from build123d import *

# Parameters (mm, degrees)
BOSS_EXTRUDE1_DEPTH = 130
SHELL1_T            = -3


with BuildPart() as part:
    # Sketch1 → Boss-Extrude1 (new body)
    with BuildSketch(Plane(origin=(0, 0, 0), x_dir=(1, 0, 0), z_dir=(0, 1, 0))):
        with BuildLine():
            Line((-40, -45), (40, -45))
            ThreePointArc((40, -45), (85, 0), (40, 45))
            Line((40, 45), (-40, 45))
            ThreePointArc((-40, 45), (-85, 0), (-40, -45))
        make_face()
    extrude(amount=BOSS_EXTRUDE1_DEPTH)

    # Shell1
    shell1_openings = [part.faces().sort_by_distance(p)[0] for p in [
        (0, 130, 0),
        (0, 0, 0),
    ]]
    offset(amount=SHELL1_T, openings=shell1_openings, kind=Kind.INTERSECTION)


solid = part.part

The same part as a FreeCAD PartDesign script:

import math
import FreeCAD as App
import Part
import Sketcher

V = App.Vector


def faces_at(feature, points):
    """Names of the faces that lie closest to the given points."""
    faces = feature.Shape.Faces
    near = lambda p: min(range(len(faces)), key=lambda i: faces[i].distToShape(Part.Vertex(*p))[0])
    return sorted({f"Face{near(p) + 1}" for p in points})

doc = App.newDocument("Part")
body = doc.addObject("PartDesign::Body", "Body")

sketch1 = body.newObject("Sketcher::SketchObject", "Sketch")
sketch1.AttachmentSupport = (doc.getObject("XZ_Plane"), [""])
sketch1.MapMode = "FlatFace"
sketch1.addGeometry(Part.LineSegment(V(-40, 45, 0), V(40, 45, 0)), False)
sketch1.addGeometry(Part.ArcOfCircle(Part.Circle(V(40, 0, 0), V(0, 0, 1), 45), math.radians(-90), math.radians(90)), False)
sketch1.addGeometry(Part.LineSegment(V(40, -45, 0), V(-40, -45, 0)), False)
sketch1.addGeometry(Part.ArcOfCircle(Part.Circle(V(-40, 0, 0), V(0, 0, 1), 45), math.radians(90), math.radians(270)), False)
sketch1.addConstraint(Sketcher.Constraint("Tangent", 0, 2, 1, 2))
sketch1.addConstraint(Sketcher.Constraint("Tangent", 1, 1, 2, 1))
sketch1.addConstraint(Sketcher.Constraint("Tangent", 2, 2, 3, 2))
sketch1.addConstraint(Sketcher.Constraint("Tangent", 3, 1, 0, 1))
sketch1.addConstraint(Sketcher.Constraint("Horizontal", 0))
sketch1.addConstraint(Sketcher.Constraint("Horizontal", 2))
sketch1.addConstraint(Sketcher.Constraint("Symmetric", 1, 3, 3, 3, -1, 1))
sketch1.addConstraint(Sketcher.Constraint("Radius", 1, 45.0))
sketch1.addConstraint(Sketcher.Constraint("DistanceX", 0, 1, 0, 2, 80.0))
pad1 = body.newObject("PartDesign::Pad", "Pad")
pad1.Profile = sketch1
pad1.Length = 130
pad1.Reversed = True
doc.recompute()

thickness = body.newObject("PartDesign::Thickness", "Thickness")
thickness.Base = (pad1, faces_at(pad1, [(0, 130, 0), (0, 0, 0)]))
thickness.Value = 3
thickness.Reversed = True
thickness.Join = "Intersection"

doc.recompute()
